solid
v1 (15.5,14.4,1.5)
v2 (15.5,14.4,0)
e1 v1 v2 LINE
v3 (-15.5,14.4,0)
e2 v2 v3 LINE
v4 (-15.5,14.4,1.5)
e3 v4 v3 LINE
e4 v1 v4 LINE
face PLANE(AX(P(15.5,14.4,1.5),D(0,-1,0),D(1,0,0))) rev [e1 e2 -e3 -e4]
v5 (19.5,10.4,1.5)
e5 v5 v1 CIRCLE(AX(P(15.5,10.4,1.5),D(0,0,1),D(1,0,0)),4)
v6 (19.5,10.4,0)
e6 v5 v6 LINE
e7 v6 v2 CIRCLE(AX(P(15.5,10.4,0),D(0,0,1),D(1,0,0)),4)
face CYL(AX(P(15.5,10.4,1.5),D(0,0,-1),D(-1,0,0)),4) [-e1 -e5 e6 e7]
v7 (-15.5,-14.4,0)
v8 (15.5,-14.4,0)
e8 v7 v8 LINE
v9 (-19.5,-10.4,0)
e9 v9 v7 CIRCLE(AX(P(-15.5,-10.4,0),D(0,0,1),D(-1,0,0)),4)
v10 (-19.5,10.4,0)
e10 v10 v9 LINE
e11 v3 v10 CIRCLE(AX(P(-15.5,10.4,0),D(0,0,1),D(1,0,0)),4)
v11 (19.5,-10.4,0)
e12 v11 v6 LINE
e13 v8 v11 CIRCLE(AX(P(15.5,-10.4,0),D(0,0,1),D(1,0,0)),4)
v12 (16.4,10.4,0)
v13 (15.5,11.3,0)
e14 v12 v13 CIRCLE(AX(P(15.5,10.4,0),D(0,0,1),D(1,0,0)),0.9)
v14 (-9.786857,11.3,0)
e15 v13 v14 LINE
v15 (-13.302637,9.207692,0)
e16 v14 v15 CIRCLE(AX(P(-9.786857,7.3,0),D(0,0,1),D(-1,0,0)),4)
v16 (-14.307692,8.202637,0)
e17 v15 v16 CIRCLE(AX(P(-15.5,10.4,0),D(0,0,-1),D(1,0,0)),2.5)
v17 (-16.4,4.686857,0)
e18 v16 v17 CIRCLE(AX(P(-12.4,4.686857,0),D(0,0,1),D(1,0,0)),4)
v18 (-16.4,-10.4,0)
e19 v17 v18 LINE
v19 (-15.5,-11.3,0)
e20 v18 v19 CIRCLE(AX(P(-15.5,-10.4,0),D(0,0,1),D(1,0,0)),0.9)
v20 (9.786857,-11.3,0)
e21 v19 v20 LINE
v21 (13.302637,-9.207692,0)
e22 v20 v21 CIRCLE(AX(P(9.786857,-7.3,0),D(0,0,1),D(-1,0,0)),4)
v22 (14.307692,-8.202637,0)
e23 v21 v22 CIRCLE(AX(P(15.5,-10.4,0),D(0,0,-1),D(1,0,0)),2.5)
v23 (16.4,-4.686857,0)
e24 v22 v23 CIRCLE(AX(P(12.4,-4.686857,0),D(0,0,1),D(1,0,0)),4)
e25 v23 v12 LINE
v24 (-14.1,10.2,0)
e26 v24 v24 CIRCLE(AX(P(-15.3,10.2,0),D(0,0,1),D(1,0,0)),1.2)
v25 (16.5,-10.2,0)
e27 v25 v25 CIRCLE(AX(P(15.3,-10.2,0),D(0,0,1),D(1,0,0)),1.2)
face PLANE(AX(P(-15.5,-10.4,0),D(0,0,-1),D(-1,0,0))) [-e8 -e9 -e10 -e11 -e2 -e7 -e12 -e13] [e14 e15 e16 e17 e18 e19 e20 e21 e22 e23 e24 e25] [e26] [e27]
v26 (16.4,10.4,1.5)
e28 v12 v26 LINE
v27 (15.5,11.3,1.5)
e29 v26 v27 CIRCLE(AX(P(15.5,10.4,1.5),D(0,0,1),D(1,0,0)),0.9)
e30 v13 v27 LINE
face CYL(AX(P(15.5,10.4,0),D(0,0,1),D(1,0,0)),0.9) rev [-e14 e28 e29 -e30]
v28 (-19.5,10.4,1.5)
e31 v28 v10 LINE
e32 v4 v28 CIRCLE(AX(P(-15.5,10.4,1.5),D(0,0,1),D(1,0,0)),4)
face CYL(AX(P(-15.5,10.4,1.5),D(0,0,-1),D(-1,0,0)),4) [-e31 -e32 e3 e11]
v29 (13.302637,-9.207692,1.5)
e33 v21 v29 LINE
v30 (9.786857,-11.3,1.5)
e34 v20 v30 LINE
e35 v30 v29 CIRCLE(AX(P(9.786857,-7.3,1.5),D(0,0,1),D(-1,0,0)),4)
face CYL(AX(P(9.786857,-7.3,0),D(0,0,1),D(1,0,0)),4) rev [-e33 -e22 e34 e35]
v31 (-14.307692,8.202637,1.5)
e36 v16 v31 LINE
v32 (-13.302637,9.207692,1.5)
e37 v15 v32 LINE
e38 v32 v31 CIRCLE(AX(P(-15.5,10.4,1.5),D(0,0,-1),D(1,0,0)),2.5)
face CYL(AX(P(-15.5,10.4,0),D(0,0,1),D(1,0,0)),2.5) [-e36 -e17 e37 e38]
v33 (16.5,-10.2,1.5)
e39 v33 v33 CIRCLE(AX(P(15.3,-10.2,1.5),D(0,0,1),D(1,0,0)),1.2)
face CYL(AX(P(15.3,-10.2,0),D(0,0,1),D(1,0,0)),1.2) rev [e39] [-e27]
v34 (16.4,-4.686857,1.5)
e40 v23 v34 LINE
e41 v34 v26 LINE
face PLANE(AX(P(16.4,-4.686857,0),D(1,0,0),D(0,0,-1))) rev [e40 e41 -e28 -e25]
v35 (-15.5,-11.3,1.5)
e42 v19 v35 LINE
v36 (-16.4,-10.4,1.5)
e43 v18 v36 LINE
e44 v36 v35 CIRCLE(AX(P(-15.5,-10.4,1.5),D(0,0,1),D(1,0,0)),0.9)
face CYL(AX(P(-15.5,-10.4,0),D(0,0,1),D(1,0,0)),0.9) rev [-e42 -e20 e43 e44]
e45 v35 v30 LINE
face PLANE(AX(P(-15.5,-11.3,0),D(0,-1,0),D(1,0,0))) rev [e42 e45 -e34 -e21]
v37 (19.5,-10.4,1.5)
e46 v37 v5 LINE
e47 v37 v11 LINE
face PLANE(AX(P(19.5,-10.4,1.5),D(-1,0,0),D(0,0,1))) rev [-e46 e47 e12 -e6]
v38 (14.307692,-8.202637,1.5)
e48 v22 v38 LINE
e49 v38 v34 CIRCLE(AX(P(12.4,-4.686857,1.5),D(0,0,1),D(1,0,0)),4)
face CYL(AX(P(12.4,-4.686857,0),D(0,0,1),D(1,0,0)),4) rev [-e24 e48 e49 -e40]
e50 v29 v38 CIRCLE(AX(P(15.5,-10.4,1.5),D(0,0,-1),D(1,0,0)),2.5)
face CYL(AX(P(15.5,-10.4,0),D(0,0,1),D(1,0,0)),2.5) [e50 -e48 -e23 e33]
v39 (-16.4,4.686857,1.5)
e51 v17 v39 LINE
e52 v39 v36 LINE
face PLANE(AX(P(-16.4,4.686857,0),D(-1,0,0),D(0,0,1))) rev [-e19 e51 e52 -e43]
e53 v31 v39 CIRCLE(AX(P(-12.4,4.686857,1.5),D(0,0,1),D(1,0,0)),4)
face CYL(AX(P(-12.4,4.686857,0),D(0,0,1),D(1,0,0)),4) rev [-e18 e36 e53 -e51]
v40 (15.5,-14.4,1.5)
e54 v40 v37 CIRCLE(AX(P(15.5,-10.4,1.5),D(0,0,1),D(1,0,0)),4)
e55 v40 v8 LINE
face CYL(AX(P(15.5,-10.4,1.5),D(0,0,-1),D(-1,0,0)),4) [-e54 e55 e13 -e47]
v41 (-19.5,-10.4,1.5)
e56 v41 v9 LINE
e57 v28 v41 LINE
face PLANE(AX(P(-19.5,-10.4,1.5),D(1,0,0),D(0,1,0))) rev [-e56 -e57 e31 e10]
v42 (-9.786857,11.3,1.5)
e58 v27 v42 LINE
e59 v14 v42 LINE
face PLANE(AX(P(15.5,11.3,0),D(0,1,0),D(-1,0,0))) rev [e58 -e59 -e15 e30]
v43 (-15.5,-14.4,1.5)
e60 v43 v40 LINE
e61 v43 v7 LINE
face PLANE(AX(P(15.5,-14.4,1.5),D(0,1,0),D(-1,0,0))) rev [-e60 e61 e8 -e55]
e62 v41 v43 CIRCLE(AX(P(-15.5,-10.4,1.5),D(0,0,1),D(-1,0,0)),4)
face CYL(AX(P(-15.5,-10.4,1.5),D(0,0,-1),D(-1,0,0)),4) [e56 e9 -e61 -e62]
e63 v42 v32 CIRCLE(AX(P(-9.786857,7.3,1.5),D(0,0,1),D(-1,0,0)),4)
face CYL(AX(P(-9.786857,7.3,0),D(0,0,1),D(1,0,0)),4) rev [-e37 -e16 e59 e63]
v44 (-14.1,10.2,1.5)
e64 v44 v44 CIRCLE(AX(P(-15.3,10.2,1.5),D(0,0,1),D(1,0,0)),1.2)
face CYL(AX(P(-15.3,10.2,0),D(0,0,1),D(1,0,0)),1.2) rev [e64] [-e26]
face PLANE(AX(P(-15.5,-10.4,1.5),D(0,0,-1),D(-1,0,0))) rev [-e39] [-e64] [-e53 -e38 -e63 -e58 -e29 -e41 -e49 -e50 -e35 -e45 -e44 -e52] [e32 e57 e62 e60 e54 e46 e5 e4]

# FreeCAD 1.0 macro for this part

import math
import FreeCAD as App
import Part
import Sketcher

V = App.Vector

doc = App.newDocument("Part")
body = doc.addObject("PartDesign::Body", "Body")

sketch1 = body.newObject("Sketcher::SketchObject", "Sketch")
sketch1.AttachmentSupport = (doc.getObject("XY_Plane"), [""])
sketch1.MapMode = "FlatFace"
sketch1.addGeometry([
    Part.LineSegment(V(-15.5, -14.4, 0), V(15.5, -14.4, 0)),
    Part.ArcOfCircle(Part.Circle(V(15.5, -10.4, 0), V(0, 0, 1), 4), math.radians(-90), math.radians(0)),
    Part.LineSegment(V(19.5, -10.4, 0), V(19.5, 10.4, 0)),
    Part.ArcOfCircle(Part.Circle(V(15.5, 10.4, 0), V(0, 0, 1), 4), math.radians(0), math.radians(90)),
    Part.LineSegment(V(15.5, 14.4, 0), V(-15.5, 14.4, 0)),
    Part.ArcOfCircle(Part.Circle(V(-15.5, 10.4, 0), V(0, 0, 1), 4), math.radians(90), math.radians(180)),
    Part.LineSegment(V(-19.5, 10.4, 0), V(-19.5, -10.4, 0)),
    Part.ArcOfCircle(Part.Circle(V(-15.5, -10.4, 0), V(0, 0, 1), 4), math.radians(180), math.radians(270)),
], False)
sketch1.addConstraint([
    Sketcher.Constraint("Tangent", 0, 2, 1, 1),
    Sketcher.Constraint("Tangent", 1, 2, 2, 1),
    Sketcher.Constraint("Tangent", 2, 2, 3, 1),
    Sketcher.Constraint("Tangent", 3, 2, 4, 1),
    Sketcher.Constraint("Tangent", 4, 2, 5, 1),
    Sketcher.Constraint("Tangent", 5, 2, 6, 1),
    Sketcher.Constraint("Tangent", 6, 2, 7, 1),
    Sketcher.Constraint("Tangent", 7, 2, 0, 1),
    Sketcher.Constraint("Horizontal", 0),
    Sketcher.Constraint("Vertical", 2),
    Sketcher.Constraint("Horizontal", 4),
    Sketcher.Constraint("Vertical", 6),
    Sketcher.Constraint("Equal", 1, 3),
    Sketcher.Constraint("Equal", 3, 5),
    Sketcher.Constraint("Equal", 5, 7),
    Sketcher.Constraint("Symmetric", 1, 3, 5, 3, -1, 1),
    Sketcher.Constraint("Radius", 1, 4.0),
    Sketcher.Constraint("DistanceX", 0, 1, 0, 2, 31.0),
    Sketcher.Constraint("DistanceY", 2, 1, 2, 2, 20.8),
])
pad1 = body.newObject("PartDesign::Pad", "Pad")
pad1.Profile = sketch1
pad1.Length = 1.5

sketch2 = body.newObject("Sketcher::SketchObject", "Sketch001")
sketch2.AttachmentSupport = (doc.getObject("XY_Plane"), [""])
sketch2.MapMode = "FlatFace"
sketch2.AttachmentOffset = App.Placement(V(0, 0, 1.5), App.Rotation())
sketch2.addGeometry([
    Part.LineSegment(V(15.5, 11.3, 0), V(-9.8, 11.3, 0)),
    Part.ArcOfCircle(Part.Circle(V(-9.8, 7.3, 0), V(0, 0, 1), 4), math.radians(90), math.radians(152)),
    Part.ArcOfCircle(Part.Circle(V(-15.5, 10.4, 0), V(0, 0, 1), 2.5), math.radians(-62), math.radians(-28)),
    Part.ArcOfCircle(Part.Circle(V(-12.4, 4.7, 0), V(0, 0, 1), 4), math.radians(118), math.radians(180)),
    Part.LineSegment(V(-16.4, 4.7, 0), V(-16.4, -10.4, 0)),
    Part.ArcOfCircle(Part.Circle(V(-15.5, -10.4, 0), V(0, 0, 1), 0.9), math.radians(180), math.radians(270)),
    Part.LineSegment(V(-15.5, -11.3, 0), V(9.8, -11.3, 0)),
    Part.ArcOfCircle(Part.Circle(V(9.8, -7.3, 0), V(0, 0, 1), 4), math.radians(-90), math.radians(-28)),
    Part.ArcOfCircle(Part.Circle(V(15.5, -10.4, 0), V(0, 0, 1), 2.5), math.radians(118), math.radians(152)),
    Part.ArcOfCircle(Part.Circle(V(12.4, -4.7, 0), V(0, 0, 1), 4), math.radians(-62), math.radians(0)),
    Part.LineSegment(V(16.4, -4.7, 0), V(16.4, 10.4, 0)),
    Part.ArcOfCircle(Part.Circle(V(15.5, 10.4, 0), V(0, 0, 1), 0.9), math.radians(0), math.radians(90)),
], False)
sketch2.addConstraint([
    Sketcher.Constraint("Tangent", 0, 2, 1, 1),
    Sketcher.Constraint("Tangent", 1, 2, 2, 2),
    Sketcher.Constraint("Tangent", 2, 1, 3, 1),
    Sketcher.Constraint("Tangent", 3, 2, 4, 1),
    Sketcher.Constraint("Tangent", 4, 2, 5, 1),
    Sketcher.Constraint("Tangent", 5, 2, 6, 1),
    Sketcher.Constraint("Tangent", 6, 2, 7, 1),
    Sketcher.Constraint("Tangent", 7, 2, 8, 2),
    Sketcher.Constraint("Tangent", 8, 1, 9, 1),
    Sketcher.Constraint("Tangent", 9, 2, 10, 1),
    Sketcher.Constraint("Tangent", 10, 2, 11, 1),
    Sketcher.Constraint("Tangent", 11, 2, 0, 1),
    Sketcher.Constraint("Horizontal", 0),
    Sketcher.Constraint("Vertical", 4),
    Sketcher.Constraint("Horizontal", 6),
    Sketcher.Constraint("Vertical", 10),
    Sketcher.Constraint("Equal", 1, 3),
    Sketcher.Constraint("Equal", 3, 7),
    Sketcher.Constraint("Equal", 2, 8),
    Sketcher.Constraint("Equal", 7, 9),
    Sketcher.Constraint("Equal", 5, 11),
    Sketcher.Constraint("Symmetric", 1, 3, 7, 3, -1, 1),
    Sketcher.Constraint("Symmetric", 3, 3, 9, 3, -1, 1),
    Sketcher.Constraint("Symmetric", 5, 3, 8, 3, -2),
    Sketcher.Constraint("Radius", 1, 4.0),
    Sketcher.Constraint("Radius", 2, 2.5),
    Sketcher.Constraint("Radius", 5, 0.9),
    Sketcher.Constraint("DistanceX", 5, 3, 8, 3, 31.0),
    Sketcher.Constraint("DistanceY", -1, 1, 1, 3, 7.3),
])
pocket1 = body.newObject("PartDesign::Pocket", "Pocket")
pocket1.Profile = sketch2
pocket1.Type = "ThroughAll"

sketch3 = body.newObject("Sketcher::SketchObject", "Sketch002")
sketch3.AttachmentSupport = (doc.getObject("XY_Plane"), [""])
sketch3.MapMode = "FlatFace"
sketch3.AttachmentOffset = App.Placement(V(0, 0, 1.5), App.Rotation())
sketch3.addGeometry([
    Part.Circle(V(-15.3, 10.2, 0), V(0, 0, 1), 1.2),
    Part.Circle(V(15.3, -10.2, 0), V(0, 0, 1), 1.2),
], False)
sketch3.addConstraint([
    Sketcher.Constraint("Equal", 0, 1),
    Sketcher.Constraint("Symmetric", 0, 3, 1, 3, -1, 1),
    Sketcher.Constraint("Diameter", 0, 2.4),
    Sketcher.Constraint("DistanceX", 0, 3, -1, 1, 15.3),
    Sketcher.Constraint("DistanceY", -1, 1, 0, 3, 10.2),
])
pocket2 = body.newObject("PartDesign::Pocket", "Pocket001")
pocket2.Profile = sketch3
pocket2.Type = "ThroughAll"

doc.recompute()
